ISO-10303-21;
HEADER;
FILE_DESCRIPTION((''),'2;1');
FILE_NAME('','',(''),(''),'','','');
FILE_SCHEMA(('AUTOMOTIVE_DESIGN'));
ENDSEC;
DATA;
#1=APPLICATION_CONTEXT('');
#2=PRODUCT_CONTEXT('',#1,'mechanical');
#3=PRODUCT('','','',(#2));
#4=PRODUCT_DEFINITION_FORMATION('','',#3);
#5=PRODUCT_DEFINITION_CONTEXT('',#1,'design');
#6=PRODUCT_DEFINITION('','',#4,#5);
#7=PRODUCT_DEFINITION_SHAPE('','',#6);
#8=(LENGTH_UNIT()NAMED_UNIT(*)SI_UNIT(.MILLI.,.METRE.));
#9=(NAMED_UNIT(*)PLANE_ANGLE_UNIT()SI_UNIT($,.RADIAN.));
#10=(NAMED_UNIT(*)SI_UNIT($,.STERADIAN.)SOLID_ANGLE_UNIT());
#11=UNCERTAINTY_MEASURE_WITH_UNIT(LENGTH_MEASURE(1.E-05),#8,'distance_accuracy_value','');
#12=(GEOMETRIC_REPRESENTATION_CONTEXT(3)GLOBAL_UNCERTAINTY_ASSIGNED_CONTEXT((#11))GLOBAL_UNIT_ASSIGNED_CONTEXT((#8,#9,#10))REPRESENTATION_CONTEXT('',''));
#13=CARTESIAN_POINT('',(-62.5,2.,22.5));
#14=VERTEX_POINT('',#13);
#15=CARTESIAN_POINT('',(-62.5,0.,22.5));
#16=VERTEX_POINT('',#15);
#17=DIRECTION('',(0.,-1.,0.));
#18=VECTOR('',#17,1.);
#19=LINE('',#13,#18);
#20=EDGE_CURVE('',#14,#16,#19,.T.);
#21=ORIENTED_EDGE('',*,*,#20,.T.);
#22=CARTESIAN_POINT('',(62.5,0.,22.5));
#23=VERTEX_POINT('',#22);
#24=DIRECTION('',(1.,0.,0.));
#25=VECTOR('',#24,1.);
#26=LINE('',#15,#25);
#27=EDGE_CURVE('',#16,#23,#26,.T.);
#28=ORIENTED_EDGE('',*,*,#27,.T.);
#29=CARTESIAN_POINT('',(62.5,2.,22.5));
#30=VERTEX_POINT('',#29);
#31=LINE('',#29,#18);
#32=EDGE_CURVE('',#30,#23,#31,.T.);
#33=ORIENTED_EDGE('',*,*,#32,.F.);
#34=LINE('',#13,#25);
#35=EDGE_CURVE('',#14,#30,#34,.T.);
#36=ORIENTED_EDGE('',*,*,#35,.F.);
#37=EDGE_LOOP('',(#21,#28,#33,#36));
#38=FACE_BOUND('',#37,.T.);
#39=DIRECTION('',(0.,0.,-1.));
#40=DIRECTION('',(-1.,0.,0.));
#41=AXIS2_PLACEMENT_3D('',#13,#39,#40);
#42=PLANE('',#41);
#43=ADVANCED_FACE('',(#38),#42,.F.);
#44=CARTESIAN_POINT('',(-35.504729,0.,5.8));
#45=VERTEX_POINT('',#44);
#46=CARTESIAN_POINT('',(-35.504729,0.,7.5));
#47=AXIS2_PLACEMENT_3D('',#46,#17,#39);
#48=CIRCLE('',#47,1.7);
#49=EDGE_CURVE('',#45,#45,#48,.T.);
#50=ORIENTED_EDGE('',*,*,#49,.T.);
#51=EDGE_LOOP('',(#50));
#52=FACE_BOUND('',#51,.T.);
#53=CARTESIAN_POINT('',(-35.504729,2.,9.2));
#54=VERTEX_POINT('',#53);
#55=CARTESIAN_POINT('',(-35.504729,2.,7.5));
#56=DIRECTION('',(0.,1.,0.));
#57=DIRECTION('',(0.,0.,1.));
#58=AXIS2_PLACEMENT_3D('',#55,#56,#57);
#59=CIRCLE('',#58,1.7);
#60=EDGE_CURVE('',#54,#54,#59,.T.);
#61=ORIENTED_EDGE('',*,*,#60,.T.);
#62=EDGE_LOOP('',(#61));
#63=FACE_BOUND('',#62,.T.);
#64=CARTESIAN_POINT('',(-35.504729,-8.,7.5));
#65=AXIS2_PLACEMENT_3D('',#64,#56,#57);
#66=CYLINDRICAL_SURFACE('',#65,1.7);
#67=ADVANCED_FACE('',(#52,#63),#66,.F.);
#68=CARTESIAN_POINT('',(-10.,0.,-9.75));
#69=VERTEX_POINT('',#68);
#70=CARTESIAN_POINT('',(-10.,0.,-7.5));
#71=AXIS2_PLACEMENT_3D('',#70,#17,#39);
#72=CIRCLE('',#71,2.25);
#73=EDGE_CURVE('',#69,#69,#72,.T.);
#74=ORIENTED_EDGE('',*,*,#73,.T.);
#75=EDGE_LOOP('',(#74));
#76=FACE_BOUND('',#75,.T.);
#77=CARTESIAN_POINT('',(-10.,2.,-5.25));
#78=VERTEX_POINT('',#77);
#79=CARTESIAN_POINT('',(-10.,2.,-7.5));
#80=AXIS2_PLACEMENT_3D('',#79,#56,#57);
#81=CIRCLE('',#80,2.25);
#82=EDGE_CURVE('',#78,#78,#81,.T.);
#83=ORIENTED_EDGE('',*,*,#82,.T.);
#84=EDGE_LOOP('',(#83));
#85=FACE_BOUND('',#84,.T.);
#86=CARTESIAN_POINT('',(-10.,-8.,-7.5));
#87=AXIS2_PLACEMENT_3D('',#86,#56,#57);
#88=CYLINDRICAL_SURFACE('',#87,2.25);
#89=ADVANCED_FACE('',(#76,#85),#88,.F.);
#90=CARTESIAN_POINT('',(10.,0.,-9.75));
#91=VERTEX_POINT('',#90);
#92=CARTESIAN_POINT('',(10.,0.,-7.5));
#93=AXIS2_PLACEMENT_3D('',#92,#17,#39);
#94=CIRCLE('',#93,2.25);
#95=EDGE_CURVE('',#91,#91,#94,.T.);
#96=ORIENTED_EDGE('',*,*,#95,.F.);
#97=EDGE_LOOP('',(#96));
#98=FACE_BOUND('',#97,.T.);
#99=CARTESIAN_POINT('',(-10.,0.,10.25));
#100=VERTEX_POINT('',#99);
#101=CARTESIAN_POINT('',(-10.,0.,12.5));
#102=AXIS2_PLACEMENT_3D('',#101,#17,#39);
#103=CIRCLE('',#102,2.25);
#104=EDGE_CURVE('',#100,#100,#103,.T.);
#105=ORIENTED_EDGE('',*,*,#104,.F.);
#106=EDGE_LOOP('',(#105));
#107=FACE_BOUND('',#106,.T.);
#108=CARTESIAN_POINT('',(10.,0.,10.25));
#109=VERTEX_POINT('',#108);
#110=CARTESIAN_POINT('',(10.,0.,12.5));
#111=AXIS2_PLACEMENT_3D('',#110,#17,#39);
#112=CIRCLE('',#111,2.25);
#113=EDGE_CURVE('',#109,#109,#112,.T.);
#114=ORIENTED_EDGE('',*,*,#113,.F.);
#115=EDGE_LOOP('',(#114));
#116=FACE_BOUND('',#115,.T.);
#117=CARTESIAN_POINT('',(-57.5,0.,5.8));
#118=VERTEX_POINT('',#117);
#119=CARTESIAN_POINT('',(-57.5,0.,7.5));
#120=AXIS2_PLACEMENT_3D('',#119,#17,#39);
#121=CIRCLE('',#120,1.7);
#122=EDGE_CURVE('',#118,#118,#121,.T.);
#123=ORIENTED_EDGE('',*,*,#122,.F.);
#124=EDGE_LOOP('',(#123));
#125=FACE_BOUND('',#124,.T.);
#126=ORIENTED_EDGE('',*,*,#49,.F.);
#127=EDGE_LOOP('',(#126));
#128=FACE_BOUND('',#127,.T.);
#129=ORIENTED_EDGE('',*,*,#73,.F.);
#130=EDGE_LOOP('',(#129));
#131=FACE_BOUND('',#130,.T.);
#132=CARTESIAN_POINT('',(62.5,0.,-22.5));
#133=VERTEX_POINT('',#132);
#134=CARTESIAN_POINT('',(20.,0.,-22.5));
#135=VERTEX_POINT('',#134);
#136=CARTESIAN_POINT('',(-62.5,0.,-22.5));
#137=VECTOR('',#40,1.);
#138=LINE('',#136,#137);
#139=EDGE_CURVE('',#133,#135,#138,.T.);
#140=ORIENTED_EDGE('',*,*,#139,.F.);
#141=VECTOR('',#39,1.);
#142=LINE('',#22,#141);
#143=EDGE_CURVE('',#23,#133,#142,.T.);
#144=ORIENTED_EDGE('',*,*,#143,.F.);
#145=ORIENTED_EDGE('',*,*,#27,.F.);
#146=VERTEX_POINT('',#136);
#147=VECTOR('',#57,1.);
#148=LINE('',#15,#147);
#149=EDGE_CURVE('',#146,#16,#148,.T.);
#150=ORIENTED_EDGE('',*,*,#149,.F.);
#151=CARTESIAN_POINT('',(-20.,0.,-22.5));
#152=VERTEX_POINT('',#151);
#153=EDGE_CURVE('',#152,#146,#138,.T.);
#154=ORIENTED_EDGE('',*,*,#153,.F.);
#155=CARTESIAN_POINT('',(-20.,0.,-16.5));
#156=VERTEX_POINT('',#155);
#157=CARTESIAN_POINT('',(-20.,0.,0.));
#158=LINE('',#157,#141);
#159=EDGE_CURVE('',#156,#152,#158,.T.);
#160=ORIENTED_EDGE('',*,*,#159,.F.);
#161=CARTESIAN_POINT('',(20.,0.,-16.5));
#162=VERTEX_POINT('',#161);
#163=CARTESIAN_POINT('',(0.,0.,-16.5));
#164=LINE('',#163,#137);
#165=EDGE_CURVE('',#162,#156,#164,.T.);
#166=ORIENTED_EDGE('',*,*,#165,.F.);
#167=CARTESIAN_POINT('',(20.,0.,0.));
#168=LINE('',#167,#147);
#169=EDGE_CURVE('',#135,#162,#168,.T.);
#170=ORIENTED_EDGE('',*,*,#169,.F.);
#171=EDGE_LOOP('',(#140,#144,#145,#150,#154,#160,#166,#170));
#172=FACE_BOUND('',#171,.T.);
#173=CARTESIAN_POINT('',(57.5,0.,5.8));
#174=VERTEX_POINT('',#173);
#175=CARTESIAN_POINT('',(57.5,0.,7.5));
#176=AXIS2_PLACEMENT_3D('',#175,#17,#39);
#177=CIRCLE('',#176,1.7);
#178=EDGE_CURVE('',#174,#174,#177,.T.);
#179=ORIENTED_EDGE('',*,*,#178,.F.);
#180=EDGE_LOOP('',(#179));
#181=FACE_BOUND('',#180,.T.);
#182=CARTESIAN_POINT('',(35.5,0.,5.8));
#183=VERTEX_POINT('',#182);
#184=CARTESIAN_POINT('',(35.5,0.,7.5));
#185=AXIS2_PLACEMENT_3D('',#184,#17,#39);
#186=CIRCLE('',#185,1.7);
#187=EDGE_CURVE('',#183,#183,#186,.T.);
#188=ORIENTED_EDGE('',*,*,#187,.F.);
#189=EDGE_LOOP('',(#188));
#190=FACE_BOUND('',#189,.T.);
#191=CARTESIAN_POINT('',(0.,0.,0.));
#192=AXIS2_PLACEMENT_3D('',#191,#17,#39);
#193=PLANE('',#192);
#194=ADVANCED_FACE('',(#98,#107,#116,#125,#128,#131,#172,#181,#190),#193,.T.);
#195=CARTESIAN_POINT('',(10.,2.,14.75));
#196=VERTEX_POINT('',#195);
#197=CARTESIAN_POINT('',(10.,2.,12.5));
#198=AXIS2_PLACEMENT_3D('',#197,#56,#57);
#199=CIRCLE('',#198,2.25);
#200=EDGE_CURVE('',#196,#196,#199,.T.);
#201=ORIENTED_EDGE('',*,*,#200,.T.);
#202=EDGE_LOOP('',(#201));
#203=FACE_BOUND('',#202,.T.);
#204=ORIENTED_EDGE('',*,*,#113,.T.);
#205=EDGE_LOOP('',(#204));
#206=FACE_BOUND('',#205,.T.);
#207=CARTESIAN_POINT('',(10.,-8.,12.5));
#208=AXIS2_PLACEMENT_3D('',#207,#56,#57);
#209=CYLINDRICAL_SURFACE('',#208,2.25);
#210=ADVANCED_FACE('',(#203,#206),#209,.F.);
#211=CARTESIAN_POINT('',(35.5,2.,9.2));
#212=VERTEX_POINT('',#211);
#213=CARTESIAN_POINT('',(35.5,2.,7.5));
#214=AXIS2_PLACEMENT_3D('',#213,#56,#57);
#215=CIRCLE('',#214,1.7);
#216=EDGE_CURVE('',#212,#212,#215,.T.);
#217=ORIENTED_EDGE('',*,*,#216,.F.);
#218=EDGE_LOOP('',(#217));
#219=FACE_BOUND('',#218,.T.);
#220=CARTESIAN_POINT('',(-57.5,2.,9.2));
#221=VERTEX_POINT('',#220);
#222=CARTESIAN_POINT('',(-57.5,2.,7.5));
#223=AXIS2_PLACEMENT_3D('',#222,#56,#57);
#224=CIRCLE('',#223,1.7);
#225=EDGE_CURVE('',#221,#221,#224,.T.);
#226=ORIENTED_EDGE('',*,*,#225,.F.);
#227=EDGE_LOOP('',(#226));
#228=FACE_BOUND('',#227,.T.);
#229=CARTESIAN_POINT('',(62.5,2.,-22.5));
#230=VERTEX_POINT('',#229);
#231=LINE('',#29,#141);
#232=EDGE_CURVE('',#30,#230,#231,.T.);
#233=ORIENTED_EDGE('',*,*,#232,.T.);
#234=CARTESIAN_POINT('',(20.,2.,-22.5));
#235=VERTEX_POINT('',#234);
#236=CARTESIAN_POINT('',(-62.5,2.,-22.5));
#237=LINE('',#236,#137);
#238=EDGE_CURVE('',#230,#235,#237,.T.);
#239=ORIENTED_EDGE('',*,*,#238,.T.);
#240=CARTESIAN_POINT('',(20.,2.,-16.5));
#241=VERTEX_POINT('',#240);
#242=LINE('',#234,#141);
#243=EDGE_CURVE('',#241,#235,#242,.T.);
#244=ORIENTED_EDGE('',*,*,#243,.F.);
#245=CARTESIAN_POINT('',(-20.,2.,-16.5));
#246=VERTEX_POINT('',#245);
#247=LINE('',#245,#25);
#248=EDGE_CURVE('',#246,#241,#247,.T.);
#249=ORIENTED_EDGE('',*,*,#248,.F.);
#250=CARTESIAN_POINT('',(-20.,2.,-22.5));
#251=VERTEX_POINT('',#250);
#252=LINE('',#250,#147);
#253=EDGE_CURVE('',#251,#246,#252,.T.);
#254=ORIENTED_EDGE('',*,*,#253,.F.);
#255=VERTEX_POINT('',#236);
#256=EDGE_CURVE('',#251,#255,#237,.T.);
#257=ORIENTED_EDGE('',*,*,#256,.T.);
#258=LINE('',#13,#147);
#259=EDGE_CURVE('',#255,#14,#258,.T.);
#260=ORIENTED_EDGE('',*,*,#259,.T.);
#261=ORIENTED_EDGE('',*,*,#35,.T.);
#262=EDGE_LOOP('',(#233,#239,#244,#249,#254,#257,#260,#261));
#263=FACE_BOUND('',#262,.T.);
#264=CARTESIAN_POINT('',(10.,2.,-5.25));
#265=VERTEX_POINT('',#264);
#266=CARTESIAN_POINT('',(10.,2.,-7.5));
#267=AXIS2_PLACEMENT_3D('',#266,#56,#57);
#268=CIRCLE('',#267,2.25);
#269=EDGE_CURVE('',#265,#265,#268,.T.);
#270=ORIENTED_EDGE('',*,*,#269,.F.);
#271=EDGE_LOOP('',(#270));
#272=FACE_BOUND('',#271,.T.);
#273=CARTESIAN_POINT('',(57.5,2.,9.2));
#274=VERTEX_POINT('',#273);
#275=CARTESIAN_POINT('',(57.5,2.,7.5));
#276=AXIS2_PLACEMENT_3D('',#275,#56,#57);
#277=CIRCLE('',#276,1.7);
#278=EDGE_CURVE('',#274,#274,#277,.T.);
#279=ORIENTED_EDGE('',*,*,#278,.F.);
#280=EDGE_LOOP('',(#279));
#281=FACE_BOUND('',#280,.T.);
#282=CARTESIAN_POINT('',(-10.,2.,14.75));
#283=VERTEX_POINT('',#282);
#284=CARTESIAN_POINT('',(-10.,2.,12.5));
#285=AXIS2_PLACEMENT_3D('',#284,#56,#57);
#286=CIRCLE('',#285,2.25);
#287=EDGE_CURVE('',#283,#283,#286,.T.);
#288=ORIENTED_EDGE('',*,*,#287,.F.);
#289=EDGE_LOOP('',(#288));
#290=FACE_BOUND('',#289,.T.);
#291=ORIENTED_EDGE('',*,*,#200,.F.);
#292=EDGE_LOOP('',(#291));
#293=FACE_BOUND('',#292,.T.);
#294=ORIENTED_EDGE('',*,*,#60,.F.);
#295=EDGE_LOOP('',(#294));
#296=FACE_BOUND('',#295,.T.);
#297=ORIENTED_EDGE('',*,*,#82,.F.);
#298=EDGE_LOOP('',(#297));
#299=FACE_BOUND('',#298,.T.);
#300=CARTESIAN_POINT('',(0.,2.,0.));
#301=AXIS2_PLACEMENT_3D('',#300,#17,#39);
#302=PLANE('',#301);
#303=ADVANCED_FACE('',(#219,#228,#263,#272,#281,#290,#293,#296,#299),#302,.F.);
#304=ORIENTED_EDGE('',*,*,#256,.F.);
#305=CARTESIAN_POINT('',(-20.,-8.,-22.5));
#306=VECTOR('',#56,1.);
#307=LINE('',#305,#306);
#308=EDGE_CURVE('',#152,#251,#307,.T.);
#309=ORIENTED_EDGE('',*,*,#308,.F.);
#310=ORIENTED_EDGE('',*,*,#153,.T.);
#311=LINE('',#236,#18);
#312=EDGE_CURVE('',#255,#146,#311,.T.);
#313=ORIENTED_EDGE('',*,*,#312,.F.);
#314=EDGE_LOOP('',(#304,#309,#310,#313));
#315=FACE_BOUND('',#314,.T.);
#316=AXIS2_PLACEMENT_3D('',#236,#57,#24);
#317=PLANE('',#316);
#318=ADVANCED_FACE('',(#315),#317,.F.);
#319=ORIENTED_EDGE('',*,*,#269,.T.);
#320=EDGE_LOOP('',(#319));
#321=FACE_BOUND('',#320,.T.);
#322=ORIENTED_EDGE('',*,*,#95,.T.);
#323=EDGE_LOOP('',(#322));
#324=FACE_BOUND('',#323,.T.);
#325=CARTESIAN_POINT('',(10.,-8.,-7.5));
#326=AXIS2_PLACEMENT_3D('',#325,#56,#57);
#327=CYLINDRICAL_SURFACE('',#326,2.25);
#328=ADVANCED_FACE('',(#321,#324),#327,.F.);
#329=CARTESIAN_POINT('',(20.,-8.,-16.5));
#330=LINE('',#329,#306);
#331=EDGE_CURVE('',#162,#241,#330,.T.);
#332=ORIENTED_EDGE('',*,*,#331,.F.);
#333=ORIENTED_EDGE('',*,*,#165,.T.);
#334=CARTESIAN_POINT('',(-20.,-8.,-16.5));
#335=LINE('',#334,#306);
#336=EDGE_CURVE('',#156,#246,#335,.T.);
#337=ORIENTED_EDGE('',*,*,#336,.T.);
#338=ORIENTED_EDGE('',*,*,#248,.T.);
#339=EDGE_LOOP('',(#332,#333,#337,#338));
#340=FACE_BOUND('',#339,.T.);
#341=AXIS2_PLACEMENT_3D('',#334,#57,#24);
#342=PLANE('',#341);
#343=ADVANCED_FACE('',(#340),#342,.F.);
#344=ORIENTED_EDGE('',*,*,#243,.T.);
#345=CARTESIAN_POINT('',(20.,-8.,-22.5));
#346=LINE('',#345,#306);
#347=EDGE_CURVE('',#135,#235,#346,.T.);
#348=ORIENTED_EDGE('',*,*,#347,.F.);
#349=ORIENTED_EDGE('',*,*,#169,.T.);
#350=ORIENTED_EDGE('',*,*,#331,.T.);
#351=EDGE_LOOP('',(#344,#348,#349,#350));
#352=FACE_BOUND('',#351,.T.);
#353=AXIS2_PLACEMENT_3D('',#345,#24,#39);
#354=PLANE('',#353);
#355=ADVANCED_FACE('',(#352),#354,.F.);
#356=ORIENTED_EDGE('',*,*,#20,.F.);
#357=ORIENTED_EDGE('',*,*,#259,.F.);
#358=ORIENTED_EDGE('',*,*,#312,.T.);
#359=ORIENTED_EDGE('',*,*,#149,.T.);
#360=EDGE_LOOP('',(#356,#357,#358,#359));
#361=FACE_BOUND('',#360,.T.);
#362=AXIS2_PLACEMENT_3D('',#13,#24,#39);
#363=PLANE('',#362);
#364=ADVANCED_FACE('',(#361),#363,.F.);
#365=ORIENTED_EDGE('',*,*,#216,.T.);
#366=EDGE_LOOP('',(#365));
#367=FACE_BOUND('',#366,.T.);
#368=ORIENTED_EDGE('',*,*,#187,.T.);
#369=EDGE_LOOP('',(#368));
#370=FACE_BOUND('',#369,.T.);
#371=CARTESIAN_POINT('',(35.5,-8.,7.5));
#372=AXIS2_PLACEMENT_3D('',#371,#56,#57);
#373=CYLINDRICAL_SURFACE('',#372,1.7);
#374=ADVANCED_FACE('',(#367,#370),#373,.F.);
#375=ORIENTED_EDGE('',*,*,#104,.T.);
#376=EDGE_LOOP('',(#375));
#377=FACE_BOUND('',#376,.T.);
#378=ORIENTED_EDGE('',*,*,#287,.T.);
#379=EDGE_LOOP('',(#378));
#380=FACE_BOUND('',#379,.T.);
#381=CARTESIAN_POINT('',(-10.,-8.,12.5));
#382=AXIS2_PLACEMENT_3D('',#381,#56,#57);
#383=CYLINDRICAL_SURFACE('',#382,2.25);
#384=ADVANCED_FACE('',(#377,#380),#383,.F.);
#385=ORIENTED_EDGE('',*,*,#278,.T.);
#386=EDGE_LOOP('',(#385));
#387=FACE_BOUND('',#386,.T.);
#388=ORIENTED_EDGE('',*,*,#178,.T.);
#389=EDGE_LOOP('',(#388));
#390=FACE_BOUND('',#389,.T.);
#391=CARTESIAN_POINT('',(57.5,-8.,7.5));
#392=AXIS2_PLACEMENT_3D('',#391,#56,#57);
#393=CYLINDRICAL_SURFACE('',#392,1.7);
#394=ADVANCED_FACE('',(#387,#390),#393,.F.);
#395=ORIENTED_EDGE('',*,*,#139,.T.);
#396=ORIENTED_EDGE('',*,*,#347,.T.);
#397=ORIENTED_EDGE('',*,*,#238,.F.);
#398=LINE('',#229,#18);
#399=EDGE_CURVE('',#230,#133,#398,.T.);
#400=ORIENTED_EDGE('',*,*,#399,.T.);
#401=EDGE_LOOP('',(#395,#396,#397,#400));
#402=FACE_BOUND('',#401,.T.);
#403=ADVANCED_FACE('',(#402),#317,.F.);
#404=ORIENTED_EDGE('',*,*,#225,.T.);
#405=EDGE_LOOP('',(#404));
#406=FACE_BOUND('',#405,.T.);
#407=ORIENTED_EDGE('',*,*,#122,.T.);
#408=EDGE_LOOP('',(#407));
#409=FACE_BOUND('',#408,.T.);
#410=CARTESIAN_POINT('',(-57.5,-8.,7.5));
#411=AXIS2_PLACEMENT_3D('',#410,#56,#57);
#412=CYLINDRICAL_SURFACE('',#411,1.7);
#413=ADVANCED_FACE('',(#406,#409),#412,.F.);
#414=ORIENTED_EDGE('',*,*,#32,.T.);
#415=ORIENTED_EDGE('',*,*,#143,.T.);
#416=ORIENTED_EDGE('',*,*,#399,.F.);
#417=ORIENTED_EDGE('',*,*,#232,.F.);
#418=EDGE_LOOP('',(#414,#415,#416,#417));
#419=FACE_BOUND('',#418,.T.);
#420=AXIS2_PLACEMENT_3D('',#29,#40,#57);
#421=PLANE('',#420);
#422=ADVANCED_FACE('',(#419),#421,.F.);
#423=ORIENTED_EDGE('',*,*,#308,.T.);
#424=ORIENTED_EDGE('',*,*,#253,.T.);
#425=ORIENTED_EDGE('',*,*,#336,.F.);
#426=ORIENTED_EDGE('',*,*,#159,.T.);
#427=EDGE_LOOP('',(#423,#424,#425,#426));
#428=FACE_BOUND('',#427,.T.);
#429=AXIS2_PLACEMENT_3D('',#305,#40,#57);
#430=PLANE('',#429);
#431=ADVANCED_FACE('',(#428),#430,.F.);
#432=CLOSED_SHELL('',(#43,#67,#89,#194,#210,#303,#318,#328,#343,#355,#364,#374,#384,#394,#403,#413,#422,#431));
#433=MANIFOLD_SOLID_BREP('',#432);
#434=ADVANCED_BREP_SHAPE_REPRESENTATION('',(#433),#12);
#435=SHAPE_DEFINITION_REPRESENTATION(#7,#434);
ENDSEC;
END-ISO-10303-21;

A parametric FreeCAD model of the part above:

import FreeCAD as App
import Part
import Sketcher

V = App.Vector
Q = App.Units.Quantity

doc = App.newDocument("Part")
params = doc.addObject("Spreadsheet::Sheet", "Params")
for row, (alias, value) in enumerate([
    ("sketch1_width", "125 mm"),
    ("sketch1_height", "45 mm"),
    ("pad1_length", "2 mm"),
    ("sketch2_diameter", "4.5 mm"),
    ("pocket1_length", "10 mm"),
    ("sketch3_diameter", "3.4 mm"),
    ("pocket2_length", "10 mm"),
    ("sketch4_width", "40 mm"),
    ("sketch4_height", "6 mm"),
    ("pocket3_length", "10 mm"),
], start=1):
    params.set(f"A{row}", alias)
    params.set(f"B{row}", "=" + value)
    params.setAlias(f"B{row}", alias)

body = doc.addObject("PartDesign::Body", "Body")

sketch1 = body.newObject("Sketcher::SketchObject", "Sketch")
sketch1.AttachmentSupport = (doc.getObject("XZ_Plane"), [""])
sketch1.MapMode = "FlatFace"
sketch1.addGeometry([
    Part.LineSegment(V(-62, -22, 0), V(-62, 22, 0)),
    Part.LineSegment(V(-62, 22, 0), V(62, 22, 0)),
    Part.LineSegment(V(62, 22, 0), V(62, -22, 0)),
    Part.LineSegment(V(62, -22, 0), V(-62, -22, 0)),
], False)
sketch1.addConstraint([
    Sketcher.Constraint("Coincident", 0, 2, 1, 1),
    Sketcher.Constraint("Coincident", 1, 2, 2, 1),
    Sketcher.Constraint("Coincident", 2, 2, 3, 1),
    Sketcher.Constraint("Coincident", 3, 2, 0, 1),
    Sketcher.Constraint("Vertical", 0),
    Sketcher.Constraint("Horizontal", 1),
    Sketcher.Constraint("Vertical", 2),
    Sketcher.Constraint("Horizontal", 3),
    Sketcher.Constraint("Symmetric", 0, 2, 2, 2, -1, 1),
    Sketcher.Constraint("DistanceX", 1, 1, 1, 2, Q("125 mm")),
    Sketcher.Constraint("DistanceY", 0, 1, 0, 2, Q("45 mm")),
])
sketch1.setExpression("Constraints[9]", "Params.sketch1_width")
sketch1.setExpression("Constraints[10]", "Params.sketch1_height")
pad1 = body.newObject("PartDesign::Pad", "Pad")
pad1.Profile = sketch1
pad1.setExpression("Length", "Params.pad1_length")
pad1.Reversed = True

sketch2 = body.newObject("Sketcher::SketchObject", "Sketch001")
sketch2.AttachmentSupport = (doc.getObject("XZ_Plane"), [""])
sketch2.MapMode = "FlatFace"
sketch2.AttachmentOffset = App.Placement(V(0, 0, -2), App.Rotation())
sketch2.addGeometry([
    Part.Circle(V(-10, 12.5, 0), V(0, 0, 1), 2.2),
    Part.Circle(V(10, 12.5, 0), V(0, 0, 1), 2.2),
    Part.Circle(V(-10, -7.5, 0), V(0, 0, 1), 2.2),
    Part.Circle(V(10, -7.5, 0), V(0, 0, 1), 2.2),
], False)
sketch2.addConstraint([
    Sketcher.Constraint("Equal", 0, 1),
    Sketcher.Constraint("Equal", 1, 2),
    Sketcher.Constraint("Equal", 2, 3),
    Sketcher.Constraint("Symmetric", 0, 3, 1, 3, -2),
    Sketcher.Constraint("Symmetric", 2, 3, 3, 3, -2),
    Sketcher.Constraint("Vertical", 0, 3, 2, 3),
    Sketcher.Constraint("Diameter", 0, Q("4.5 mm")),
    Sketcher.Constraint("DistanceX", 0, 3, -1, 1, Q("10 mm")),
    Sketcher.Constraint("DistanceY", 2, 3, 0, 3, Q("20 mm")),
    Sketcher.Constraint("DistanceY", -1, 1, 0, 3, Q("12.5 mm")),
])
sketch2.setExpression("Constraints[6]", "Params.sketch2_diameter")
pocket1 = body.newObject("PartDesign::Pocket", "Pocket")
pocket1.Profile = sketch2
pocket1.setExpression("Length", "Params.pocket1_length")
pocket1.Reversed = True

sketch3 = body.newObject("Sketcher::SketchObject", "Sketch002")
sketch3.AttachmentSupport = (doc.getObject("XZ_Plane"), [""])
sketch3.MapMode = "FlatFace"
sketch3.AttachmentOffset = App.Placement(V(0, 0, -2), App.Rotation())
sketch3.addGeometry([
    Part.Circle(V(57.5, 7.5, 0), V(0, 0, 1), 1.7),
    Part.Circle(V(35.5, 7.5, 0), V(0, 0, 1), 1.7),
    Part.Circle(V(-35.5, 7.5, 0), V(0, 0, 1), 1.7),
    Part.Circle(V(-57.5, 7.5, 0), V(0, 0, 1), 1.7),
], False)
sketch3.addConstraint([
    Sketcher.Constraint("Equal", 0, 1),
    Sketcher.Constraint("Equal", 1, 2),
    Sketcher.Constraint("Equal", 2, 3),
    Sketcher.Constraint("Symmetric", 0, 3, 3, 3, -2),
    Sketcher.Constraint("Horizontal", 0, 3, 1, 3),
    Sketcher.Constraint("Horizontal", 1, 3, 2, 3),
    Sketcher.Constraint("Diameter", 0, Q("3.4 mm")),
    Sketcher.Constraint("DistanceX", 1, 3, 0, 3, Q("22 mm")),
    Sketcher.Constraint("DistanceX", 3, 3, 1, 3, Q("93 mm")),
    Sketcher.Constraint("DistanceY", -1, 1, 0, 3, Q("7.5 mm")),
    Sketcher.Constraint("DistanceX", 2, 3, -1, 1, Q("35.504729 mm")),
])
sketch3.setExpression("Constraints[6]", "Params.sketch3_diameter")
pocket2 = body.newObject("PartDesign::Pocket", "Pocket001")
pocket2.Profile = sketch3
pocket2.setExpression("Length", "Params.pocket2_length")
pocket2.Reversed = True

sketch4 = body.newObject("Sketcher::SketchObject", "Sketch003")
sketch4.AttachmentSupport = (doc.getObject("XZ_Plane"), [""])
sketch4.MapMode = "FlatFace"
sketch4.AttachmentOffset = App.Placement(V(0, 0, -2), App.Rotation())
sketch4.addGeometry([
    Part.LineSegment(V(-20, -22, 0), V(-20, -16, 0)),
    Part.LineSegment(V(-20, -16, 0), V(20, -16, 0)),
    Part.LineSegment(V(20, -16, 0), V(20, -22, 0)),
    Part.LineSegment(V(20, -22, 0), V(-20, -22, 0)),
], False)
sketch4.addConstraint([
    Sketcher.Constraint("Coincident", 0, 2, 1, 1),
    Sketcher.Constraint("Coincident", 1, 2, 2, 1),
    Sketcher.Constraint("Coincident", 2, 2, 3, 1),
    Sketcher.Constraint("Coincident", 3, 2, 0, 1),
    Sketcher.Constraint("Vertical", 0),
    Sketcher.Constraint("Horizontal", 1),
    Sketcher.Constraint("Vertical", 2),
    Sketcher.Constraint("Horizontal", 3),
    Sketcher.Constraint("DistanceX", 1, 1, 1, 2, Q("40 mm")),
    Sketcher.Constraint("DistanceY", 0, 1, 0, 2, Q("6 mm")),
    Sketcher.Constraint("DistanceX", 0, 2, -1, 1, Q("20 mm")),
    Sketcher.Constraint("DistanceY", 0, 2, -1, 1, Q("16.5 mm")),
])
sketch4.setExpression("Constraints[8]", "Params.sketch4_width")
sketch4.setExpression("Constraints[9]", "Params.sketch4_height")
pocket3 = body.newObject("PartDesign::Pocket", "Pocket002")
pocket3.Profile = sketch4
pocket3.setExpression("Length", "Params.pocket3_length")
pocket3.Reversed = True

doc.recompute()
